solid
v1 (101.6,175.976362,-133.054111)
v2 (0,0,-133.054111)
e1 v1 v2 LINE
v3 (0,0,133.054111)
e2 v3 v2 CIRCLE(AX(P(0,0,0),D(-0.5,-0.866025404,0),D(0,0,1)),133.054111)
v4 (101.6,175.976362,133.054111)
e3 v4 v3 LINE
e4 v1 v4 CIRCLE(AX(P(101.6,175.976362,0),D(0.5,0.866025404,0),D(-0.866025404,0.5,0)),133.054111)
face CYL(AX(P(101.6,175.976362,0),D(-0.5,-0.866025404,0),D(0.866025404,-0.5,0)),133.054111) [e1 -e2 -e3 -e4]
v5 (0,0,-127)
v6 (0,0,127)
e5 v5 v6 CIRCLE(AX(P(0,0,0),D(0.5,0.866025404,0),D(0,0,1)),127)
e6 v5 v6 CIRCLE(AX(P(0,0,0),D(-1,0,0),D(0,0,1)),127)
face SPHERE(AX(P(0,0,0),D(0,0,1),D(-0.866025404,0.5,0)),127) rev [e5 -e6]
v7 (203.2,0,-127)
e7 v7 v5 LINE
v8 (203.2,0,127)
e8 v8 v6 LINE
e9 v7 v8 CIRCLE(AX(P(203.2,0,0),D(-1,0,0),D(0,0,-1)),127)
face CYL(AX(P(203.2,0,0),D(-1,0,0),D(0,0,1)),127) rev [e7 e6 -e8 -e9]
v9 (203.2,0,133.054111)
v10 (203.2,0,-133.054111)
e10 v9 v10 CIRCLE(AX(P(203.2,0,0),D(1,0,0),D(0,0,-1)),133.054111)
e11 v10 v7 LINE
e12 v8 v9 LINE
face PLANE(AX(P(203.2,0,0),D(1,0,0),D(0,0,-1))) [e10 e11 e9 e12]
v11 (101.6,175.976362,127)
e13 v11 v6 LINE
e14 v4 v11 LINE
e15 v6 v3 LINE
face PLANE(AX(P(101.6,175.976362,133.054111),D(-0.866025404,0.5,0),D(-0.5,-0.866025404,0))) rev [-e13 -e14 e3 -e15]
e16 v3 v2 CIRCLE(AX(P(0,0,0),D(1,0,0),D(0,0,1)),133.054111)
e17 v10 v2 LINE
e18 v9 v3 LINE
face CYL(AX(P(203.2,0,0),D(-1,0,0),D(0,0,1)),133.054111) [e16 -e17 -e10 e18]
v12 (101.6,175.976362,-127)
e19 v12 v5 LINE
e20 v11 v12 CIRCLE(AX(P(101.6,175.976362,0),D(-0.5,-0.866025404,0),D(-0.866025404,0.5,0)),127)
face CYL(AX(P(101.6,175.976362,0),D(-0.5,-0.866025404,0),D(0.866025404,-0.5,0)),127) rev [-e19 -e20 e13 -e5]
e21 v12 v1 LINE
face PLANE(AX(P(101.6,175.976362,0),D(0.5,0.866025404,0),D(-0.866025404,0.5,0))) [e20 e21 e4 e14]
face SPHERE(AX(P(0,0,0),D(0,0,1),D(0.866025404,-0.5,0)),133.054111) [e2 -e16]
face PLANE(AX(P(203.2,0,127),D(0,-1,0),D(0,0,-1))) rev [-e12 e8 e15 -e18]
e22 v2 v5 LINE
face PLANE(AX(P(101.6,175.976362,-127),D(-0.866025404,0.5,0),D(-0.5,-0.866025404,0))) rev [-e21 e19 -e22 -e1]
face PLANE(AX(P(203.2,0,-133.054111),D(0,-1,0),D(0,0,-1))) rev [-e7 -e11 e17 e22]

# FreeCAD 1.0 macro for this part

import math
import FreeCAD as App
import Part
import Sketcher
from FreeCAD import Vector
Q = App.Units.Quantity

doc = App.newDocument("Part")
body = doc.addObject("PartDesign::Body", "Body")

sketch1 = body.newObject("Sketcher::SketchObject", "Sketch")
sketch1.AttachmentSupport = (doc.getObject("YZ_Plane"), [""])
sketch1.MapMode = "FlatFace"
sketch1.addGeometry([
    Part.LineSegment(Vector(0, 127, 0), Vector(0, 133.054111, 0)),
    Part.ArcOfCircle(Part.Circle(Vector(0, 0, 0), Vector(0, 0, 1), 133.054111), math.radians(90), math.radians(270)),
    Part.LineSegment(Vector(0, -133.054111, 0), Vector(0, -127, 0)),
    Part.ArcOfCircle(Part.Circle(Vector(0, 0, 0), Vector(0, 0, 1), 127), math.radians(90), math.radians(270)),
], False)
sketch1.addConstraint([
    Sketcher.Constraint("Coincident", 0, 2, 1, 1),
    Sketcher.Constraint("Coincident", 1, 2, 2, 1),
    Sketcher.Constraint("Coincident", 2, 2, 3, 2),
    Sketcher.Constraint("Coincident", 3, 1, 0, 1),
    Sketcher.Constraint("Vertical", 0),
    Sketcher.Constraint("Vertical", 2),
    Sketcher.Constraint("Coincident", 1, 3, -1, 1),
    Sketcher.Constraint("Coincident", 3, 3, -1, 1),
    Sketcher.Constraint("PointOnObject", 0, 2, -2),
    Sketcher.Constraint("PointOnObject", 1, 2, -2),
    Sketcher.Constraint("Radius", 3, Q("5 in")),
    Sketcher.Constraint("Radius", 1, 133.054111),
])
revolution = body.newObject("PartDesign::Revolution", "Revolution")
revolution.Profile = sketch1
revolution.ReferenceAxis = (sketch1, ["V_Axis"])
revolution.Angle = 120
revolution.Reversed = True

sketch2 = body.newObject("Sketcher::SketchObject", "Sketch001")
sketch2.AttachmentSupport = (doc.getObject("YZ_Plane"), [""])
sketch2.MapMode = "FlatFace"
sketch2.addGeometry([
    Part.LineSegment(Vector(0, 127, 0), Vector(0, 133.054111, 0)),
    Part.ArcOfCircle(Part.Circle(Vector(0, 0, 0), Vector(0, 0, 1), 133.054111), math.radians(90), math.radians(270)),
    Part.LineSegment(Vector(0, -133.054111, 0), Vector(0, -127, 0)),
    Part.ArcOfCircle(Part.Circle(Vector(0, 0, 0), Vector(0, 0, 1), 127), math.radians(90), math.radians(270)),
], False)
sketch2.addConstraint([
    Sketcher.Constraint("Coincident", 0, 2, 1, 1),
    Sketcher.Constraint("Coincident", 1, 2, 2, 1),
    Sketcher.Constraint("Coincident", 2, 2, 3, 2),
    Sketcher.Constraint("Coincident", 3, 1, 0, 1),
    Sketcher.Constraint("Vertical", 0),
    Sketcher.Constraint("Vertical", 2),
    Sketcher.Constraint("Coincident", 1, 3, -1, 1),
    Sketcher.Constraint("Coincident", 3, 3, -1, 1),
    Sketcher.Constraint("PointOnObject", 0, 2, -2),
    Sketcher.Constraint("PointOnObject", 1, 2, -2),
    Sketcher.Constraint("Radius", 3, Q("5 in")),
    Sketcher.Constraint("Radius", 1, 133.054111),
])
pad1 = body.newObject("PartDesign::Pad", "Pad")
pad1.Profile = sketch2
pad1.Length = Q("8 in")

sketch3 = body.newObject("Sketcher::SketchObject", "Sketch002")
sketch3.Placement = App.Placement(Vector(0, 0, 0), App.Rotation(Vector(0.866025404, -0.5, 0), Vector(0, 0, -1), Vector(0.5, 0.866025404, 0), "ZXY"))
sketch3.addGeometry([
    Part.LineSegment(Vector(0, 127, 0), Vector(0, 133.054111, 0)),
    Part.ArcOfCircle(Part.Circle(Vector(0, 0, 0), Vector(0, 0, 1), 133.054111), math.radians(90), math.radians(270)),
    Part.LineSegment(Vector(0, -133.054111, 0), Vector(0, -127, 0)),
    Part.ArcOfCircle(Part.Circle(Vector(0, 0, 0), Vector(0, 0, 1), 127), math.radians(90), math.radians(270)),
], False)
sketch3.addConstraint([
    Sketcher.Constraint("Coincident", 0, 2, 1, 1),
    Sketcher.Constraint("Coincident", 1, 2, 2, 1),
    Sketcher.Constraint("Coincident", 2, 2, 3, 2),
    Sketcher.Constraint("Coincident", 3, 1, 0, 1),
    Sketcher.Constraint("Vertical", 0),
    Sketcher.Constraint("Vertical", 2),
    Sketcher.Constraint("Coincident", 1, 3, -1, 1),
    Sketcher.Constraint("Coincident", 3, 3, -1, 1),
    Sketcher.Constraint("PointOnObject", 0, 2, -2),
    Sketcher.Constraint("PointOnObject", 1, 2, -2),
    Sketcher.Constraint("Radius", 3, Q("5 in")),
    Sketcher.Constraint("Radius", 1, 133.054111),
])
pad2 = body.newObject("PartDesign::Pad", "Pad001")
pad2.Profile = sketch3
pad2.Length = Q("8 in")

doc.recompute()
